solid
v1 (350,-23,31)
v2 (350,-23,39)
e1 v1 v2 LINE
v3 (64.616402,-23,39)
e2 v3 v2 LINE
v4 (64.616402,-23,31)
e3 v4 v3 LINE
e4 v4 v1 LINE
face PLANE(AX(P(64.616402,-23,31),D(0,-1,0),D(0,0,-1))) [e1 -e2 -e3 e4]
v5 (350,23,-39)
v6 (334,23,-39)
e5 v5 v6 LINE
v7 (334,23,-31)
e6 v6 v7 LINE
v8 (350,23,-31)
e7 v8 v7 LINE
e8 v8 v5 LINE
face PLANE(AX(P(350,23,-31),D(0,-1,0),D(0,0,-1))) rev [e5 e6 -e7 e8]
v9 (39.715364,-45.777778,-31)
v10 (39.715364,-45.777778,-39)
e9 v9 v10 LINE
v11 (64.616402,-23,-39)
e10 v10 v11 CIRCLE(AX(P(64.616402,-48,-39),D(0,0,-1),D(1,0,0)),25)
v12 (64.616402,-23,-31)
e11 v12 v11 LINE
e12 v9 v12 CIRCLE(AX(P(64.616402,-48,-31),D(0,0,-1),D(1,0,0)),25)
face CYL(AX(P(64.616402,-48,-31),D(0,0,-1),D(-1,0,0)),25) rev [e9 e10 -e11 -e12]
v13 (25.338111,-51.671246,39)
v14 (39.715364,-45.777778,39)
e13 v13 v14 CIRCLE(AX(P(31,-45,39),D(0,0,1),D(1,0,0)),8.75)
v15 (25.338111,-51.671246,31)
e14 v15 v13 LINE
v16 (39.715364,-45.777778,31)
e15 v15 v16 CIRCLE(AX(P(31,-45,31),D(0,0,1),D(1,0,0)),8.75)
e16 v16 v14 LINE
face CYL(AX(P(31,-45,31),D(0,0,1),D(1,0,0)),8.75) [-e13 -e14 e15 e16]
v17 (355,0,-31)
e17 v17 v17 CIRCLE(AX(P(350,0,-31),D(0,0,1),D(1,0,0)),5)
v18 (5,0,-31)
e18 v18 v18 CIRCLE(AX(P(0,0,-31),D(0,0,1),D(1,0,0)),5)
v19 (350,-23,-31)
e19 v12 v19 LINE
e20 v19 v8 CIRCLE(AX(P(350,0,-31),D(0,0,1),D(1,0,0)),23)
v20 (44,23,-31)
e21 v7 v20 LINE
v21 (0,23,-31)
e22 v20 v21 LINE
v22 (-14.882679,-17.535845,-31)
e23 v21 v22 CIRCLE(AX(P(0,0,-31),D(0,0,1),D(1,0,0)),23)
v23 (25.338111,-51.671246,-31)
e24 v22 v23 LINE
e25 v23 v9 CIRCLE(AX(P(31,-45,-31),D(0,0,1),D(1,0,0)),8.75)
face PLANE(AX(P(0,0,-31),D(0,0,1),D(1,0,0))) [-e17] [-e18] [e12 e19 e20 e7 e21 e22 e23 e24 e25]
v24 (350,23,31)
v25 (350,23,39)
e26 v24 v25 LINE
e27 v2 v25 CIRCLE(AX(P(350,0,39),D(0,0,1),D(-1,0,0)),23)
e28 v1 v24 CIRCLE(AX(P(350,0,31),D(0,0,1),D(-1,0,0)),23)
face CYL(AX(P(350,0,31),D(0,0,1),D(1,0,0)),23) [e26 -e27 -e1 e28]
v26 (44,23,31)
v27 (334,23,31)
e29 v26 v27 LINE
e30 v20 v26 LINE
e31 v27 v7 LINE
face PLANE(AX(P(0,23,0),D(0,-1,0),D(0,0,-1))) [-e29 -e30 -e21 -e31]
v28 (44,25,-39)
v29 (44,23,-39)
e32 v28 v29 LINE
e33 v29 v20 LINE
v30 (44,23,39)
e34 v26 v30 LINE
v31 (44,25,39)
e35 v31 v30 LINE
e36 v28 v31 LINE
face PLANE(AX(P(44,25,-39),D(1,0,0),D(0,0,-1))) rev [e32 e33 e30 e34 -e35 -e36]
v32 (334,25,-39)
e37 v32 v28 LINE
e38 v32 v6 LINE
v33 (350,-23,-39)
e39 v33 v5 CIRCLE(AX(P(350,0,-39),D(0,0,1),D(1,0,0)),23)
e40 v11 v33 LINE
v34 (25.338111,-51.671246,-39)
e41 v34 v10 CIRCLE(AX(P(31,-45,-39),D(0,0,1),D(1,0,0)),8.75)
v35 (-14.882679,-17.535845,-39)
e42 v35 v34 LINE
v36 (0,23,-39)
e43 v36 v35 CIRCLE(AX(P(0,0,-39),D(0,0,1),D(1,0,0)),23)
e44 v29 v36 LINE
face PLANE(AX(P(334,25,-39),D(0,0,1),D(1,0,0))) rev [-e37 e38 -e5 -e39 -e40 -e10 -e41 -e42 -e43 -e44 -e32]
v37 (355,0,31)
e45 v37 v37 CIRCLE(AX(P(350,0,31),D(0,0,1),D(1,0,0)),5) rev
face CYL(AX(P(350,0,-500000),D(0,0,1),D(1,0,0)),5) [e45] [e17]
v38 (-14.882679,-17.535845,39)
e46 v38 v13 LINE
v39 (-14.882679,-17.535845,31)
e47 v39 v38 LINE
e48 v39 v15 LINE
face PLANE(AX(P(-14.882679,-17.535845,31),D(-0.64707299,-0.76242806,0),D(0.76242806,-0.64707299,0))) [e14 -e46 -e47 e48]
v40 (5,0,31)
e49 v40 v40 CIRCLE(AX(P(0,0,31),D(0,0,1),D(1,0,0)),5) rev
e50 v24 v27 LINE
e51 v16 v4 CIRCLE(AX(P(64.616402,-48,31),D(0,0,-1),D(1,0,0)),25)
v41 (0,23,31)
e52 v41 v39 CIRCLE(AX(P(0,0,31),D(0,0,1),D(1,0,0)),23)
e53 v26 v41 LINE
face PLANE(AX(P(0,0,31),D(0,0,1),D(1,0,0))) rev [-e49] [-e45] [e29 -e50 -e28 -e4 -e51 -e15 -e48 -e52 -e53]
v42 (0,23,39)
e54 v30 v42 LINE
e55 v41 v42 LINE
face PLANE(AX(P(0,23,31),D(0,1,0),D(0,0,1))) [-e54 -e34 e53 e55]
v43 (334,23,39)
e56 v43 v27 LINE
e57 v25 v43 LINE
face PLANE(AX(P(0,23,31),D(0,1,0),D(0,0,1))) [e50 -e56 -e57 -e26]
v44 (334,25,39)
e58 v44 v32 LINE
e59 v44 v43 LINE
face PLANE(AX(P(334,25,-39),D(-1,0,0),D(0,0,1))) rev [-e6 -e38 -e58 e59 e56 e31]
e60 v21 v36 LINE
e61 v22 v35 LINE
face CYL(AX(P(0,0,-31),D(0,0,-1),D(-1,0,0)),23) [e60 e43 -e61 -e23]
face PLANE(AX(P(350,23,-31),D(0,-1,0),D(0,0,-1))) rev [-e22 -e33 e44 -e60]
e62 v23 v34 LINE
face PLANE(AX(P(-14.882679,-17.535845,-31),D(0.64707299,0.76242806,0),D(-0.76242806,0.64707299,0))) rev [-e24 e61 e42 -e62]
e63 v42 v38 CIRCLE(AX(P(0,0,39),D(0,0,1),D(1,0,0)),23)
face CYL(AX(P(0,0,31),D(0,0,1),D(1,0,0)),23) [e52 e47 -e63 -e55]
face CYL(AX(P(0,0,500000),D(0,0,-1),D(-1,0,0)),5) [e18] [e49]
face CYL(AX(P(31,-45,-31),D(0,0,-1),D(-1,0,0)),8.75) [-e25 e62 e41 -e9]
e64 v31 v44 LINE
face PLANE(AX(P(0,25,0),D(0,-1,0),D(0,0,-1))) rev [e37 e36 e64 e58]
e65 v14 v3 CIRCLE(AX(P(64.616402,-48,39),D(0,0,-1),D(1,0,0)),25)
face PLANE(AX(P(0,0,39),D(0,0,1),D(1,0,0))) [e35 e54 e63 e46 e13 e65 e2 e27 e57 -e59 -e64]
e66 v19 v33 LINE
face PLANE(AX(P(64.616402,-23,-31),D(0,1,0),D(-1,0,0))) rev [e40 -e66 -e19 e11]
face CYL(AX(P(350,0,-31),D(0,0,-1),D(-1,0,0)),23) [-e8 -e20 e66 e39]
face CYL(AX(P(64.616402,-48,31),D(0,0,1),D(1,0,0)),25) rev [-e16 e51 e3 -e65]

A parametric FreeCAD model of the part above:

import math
import FreeCAD as App
import Part
import Sketcher
from FreeCAD import Vector
Q = App.Units.Quantity


def add_polygon(sketch, points):
    """Adds a closed chain of lines whose ends are joined by coincident constraints."""
    first, n = sketch.GeometryCount, len(points)
    for a, b in zip(points, points[1:] + points[:1]):
        sketch.addGeometry(Part.LineSegment(App.Vector(*a, 0), App.Vector(*b, 0)), False)
    for i in range(n):
        sketch.addConstraint(Sketcher.Constraint("Coincident", first + i, 2, first + (i + 1) % n, 1))

doc = App.newDocument("Part")
body = doc.addObject("PartDesign::Body", "Body")

# Sketch on XY plane
sketch1 = body.newObject("Sketcher::SketchObject", "Sketch")
sketch1.AttachmentSupport = (doc.getObject("XY_Plane"), [""])
sketch1.MapMode = "FlatFace"
sketch1.AttachmentOffset = App.Placement(Vector(0, 0, 39), App.Rotation())
sketch1.addGeometry([
    Part.LineSegment(Vector(-15, -18, 0), Vector(25, -52, 0)),  # 0
    Part.ArcOfCircle(Part.Circle(Vector(31, -45, 0), Vector(0, 0, 1), 9), math.radians(-130), math.radians(-5)),  # 1
    Part.ArcOfCircle(Part.Circle(Vector(65, -48, 0), Vector(0, 0, 1), 25), math.radians(90), math.radians(175)),  # 2
    Part.LineSegment(Vector(65, -23, 0), Vector(350, -23, 0)),  # 3
    Part.ArcOfCircle(Part.Circle(Vector(350, 0, 0), Vector(0, 0, 1), 23), math.radians(-90), math.radians(90)),  # 4
    Part.LineSegment(Vector(350, 23, 0), Vector(0, 23, 0)),  # 5
    Part.ArcOfCircle(Part.Circle(Vector(0, 0, 0), Vector(0, 0, 1), 23), math.radians(90), math.radians(230)),  # 6
], False)
sketch1.addConstraint([
    Sketcher.Constraint("Tangent", 0, 2, 1, 1),
    Sketcher.Constraint("Tangent", 1, 2, 2, 2),
    Sketcher.Constraint("Tangent", 2, 1, 3, 1),
    Sketcher.Constraint("Tangent", 3, 2, 4, 1),
    Sketcher.Constraint("Tangent", 4, 2, 5, 1),
    Sketcher.Constraint("Tangent", 5, 2, 6, 1),
    Sketcher.Constraint("Tangent", 6, 2, 0, 1),
    Sketcher.Constraint("Horizontal", 3),
    Sketcher.Constraint("Horizontal", 5),
    Sketcher.Constraint("Coincident", 6, 3, -1, 1),
    Sketcher.Constraint("Equal", 4, 6),
    Sketcher.Constraint("Radius", 2, Q("25 mm")),
    Sketcher.Constraint("Radius", 4, Q("23 mm")),
    Sketcher.Constraint("DistanceX", 5, 2, 5, 1, Q("350 mm")),
    Sketcher.Constraint("Radius", 1, Q("8.75 mm")),
    Sketcher.Constraint("DistanceX", -1, 1, 1, 3, Q("31 mm")),
    Sketcher.Constraint("DistanceY", 1, 3, -1, 1, Q("45 mm")),
])
pad1 = body.newObject("PartDesign::Pad", "Pad")
pad1.Profile = sketch1
pad1.Length = 8
pad1.Reversed = True
body2 = doc.addObject("PartDesign::Body", "Body001")

# Sketch on XY plane
sketch2 = body2.newObject("Sketcher::SketchObject", "Sketch001")
sketch2.AttachmentSupport = (doc.getObject("XY_Plane001"), [""])
sketch2.MapMode = "FlatFace"
sketch2.AttachmentOffset = App.Placement(Vector(0, 0, -39), App.Rotation())
sketch2.addGeometry([
    Part.LineSegment(Vector(-15, -18, 0), Vector(25, -52, 0)),  # 0
    Part.ArcOfCircle(Part.Circle(Vector(31, -45, 0), Vector(0, 0, 1), 9), math.radians(-130), math.radians(-5)),  # 1
    Part.ArcOfCircle(Part.Circle(Vector(65, -48, 0), Vector(0, 0, 1), 25), math.radians(90), math.radians(175)),  # 2
    Part.LineSegment(Vector(65, -23, 0), Vector(350, -23, 0)),  # 3
    Part.ArcOfCircle(Part.Circle(Vector(350, 0, 0), Vector(0, 0, 1), 23), math.radians(-90), math.radians(90)),  # 4
    Part.LineSegment(Vector(350, 23, 0), Vector(0, 23, 0)),  # 5
    Part.ArcOfCircle(Part.Circle(Vector(0, 0, 0), Vector(0, 0, 1), 23), math.radians(90), math.radians(230)),  # 6
], False)
sketch2.addConstraint([
    Sketcher.Constraint("Tangent", 0, 2, 1, 1),
    Sketcher.Constraint("Tangent", 1, 2, 2, 2),
    Sketcher.Constraint("Tangent", 2, 1, 3, 1),
    Sketcher.Constraint("Tangent", 3, 2, 4, 1),
    Sketcher.Constraint("Tangent", 4, 2, 5, 1),
    Sketcher.Constraint("Tangent", 5, 2, 6, 1),
    Sketcher.Constraint("Tangent", 6, 2, 0, 1),
    Sketcher.Constraint("Horizontal", 3),
    Sketcher.Constraint("Horizontal", 5),
    Sketcher.Constraint("Coincident", 6, 3, -1, 1),
    Sketcher.Constraint("Equal", 4, 6),
    Sketcher.Constraint("Radius", 2, Q("25 mm")),
    Sketcher.Constraint("Radius", 4, Q("23 mm")),
    Sketcher.Constraint("DistanceX", 5, 2, 5, 1, Q("350 mm")),
    Sketcher.Constraint("Radius", 1, Q("8.75 mm")),
    Sketcher.Constraint("DistanceX", -1, 1, 1, 3, Q("31 mm")),
    Sketcher.Constraint("DistanceY", 1, 3, -1, 1, Q("45 mm")),
])
pad2 = body2.newObject("PartDesign::Pad", "Pad001")
pad2.Profile = sketch2
pad2.Length = 8
body.AllowCompound = True
doc.recompute()

boolean = body.newObject("PartDesign::Boolean", "Boolean")
boolean.Type = "Fuse"
boolean.addObjects([body2])

# Sketch on XZ plane
sketch3 = body.newObject("Sketcher::SketchObject", "Sketch002")
sketch3.AttachmentSupport = (doc.getObject("XZ_Plane"), [""])
sketch3.MapMode = "FlatFace"
sketch3.AttachmentOffset = App.Placement(Vector(0, 0, -23), App.Rotation())
add_polygon(sketch3, [(44, -39), (44, 39), (334, 39), (334, -39)])  # lines 0-3
sketch3.addConstraint([
    Sketcher.Constraint("Vertical", 0),
    Sketcher.Constraint("Horizontal", 1),
    Sketcher.Constraint("Vertical", 2),
    Sketcher.Constraint("Horizontal", 3),
    Sketcher.Constraint("DistanceX", 1, 1, 1, 2, Q("290 mm")),
    Sketcher.Constraint("DistanceY", 0, 1, 0, 2, Q("78 mm")),
    Sketcher.Constraint("DistanceX", -1, 1, 0, 2, Q("44 mm")),
    Sketcher.Constraint("DistanceY", -1, 1, 0, 2, Q("39 mm")),
])
pad3 = body.newObject("PartDesign::Pad", "Pad002")
pad3.Profile = sketch3
pad3.Length = 2
pad3.Reversed = True

# Sketch on XY plane
sketch4 = body.newObject("Sketcher::SketchObject", "Sketch003")
sketch4.AttachmentSupport = (doc.getObject("XY_Plane"), [""])
sketch4.MapMode = "FlatFace"
sketch4.AttachmentOffset = App.Placement(Vector(0, 0, -31), App.Rotation())
sketch4.addGeometry(Part.Circle(Vector(0, 0, 0), Vector(0, 0, 1), 5), False)
sketch4.addConstraint([
    Sketcher.Constraint("Coincident", 0, 3, -1, 1),
    Sketcher.Constraint("Diameter", 0, Q("10 mm")),
])
pad4 = body.newObject("PartDesign::Pad", "Pad003")
pad4.Profile = sketch4
pad4.Type = "UpToFirst"

# Sketch on XY plane
sketch5 = body.newObject("Sketcher::SketchObject", "Sketch004")
sketch5.AttachmentSupport = (doc.getObject("XY_Plane"), [""])
sketch5.MapMode = "FlatFace"
sketch5.AttachmentOffset = App.Placement(Vector(0, 0, 31), App.Rotation())
sketch5.addGeometry(Part.Circle(Vector(350, 0, 0), Vector(0, 0, 1), 5), False)
sketch5.addConstraint([
    Sketcher.Constraint("PointOnObject", 0, 3, -1),
    Sketcher.Constraint("Diameter", 0, Q("10 mm")),
    Sketcher.Constraint("DistanceX", -1, 1, 0, 3, Q("350 mm")),
])
pad5 = body.newObject("PartDesign::Pad", "Pad004")
pad5.Profile = sketch5
pad5.Type = "UpToFirst"
pad5.Reversed = True

doc.recompute()
